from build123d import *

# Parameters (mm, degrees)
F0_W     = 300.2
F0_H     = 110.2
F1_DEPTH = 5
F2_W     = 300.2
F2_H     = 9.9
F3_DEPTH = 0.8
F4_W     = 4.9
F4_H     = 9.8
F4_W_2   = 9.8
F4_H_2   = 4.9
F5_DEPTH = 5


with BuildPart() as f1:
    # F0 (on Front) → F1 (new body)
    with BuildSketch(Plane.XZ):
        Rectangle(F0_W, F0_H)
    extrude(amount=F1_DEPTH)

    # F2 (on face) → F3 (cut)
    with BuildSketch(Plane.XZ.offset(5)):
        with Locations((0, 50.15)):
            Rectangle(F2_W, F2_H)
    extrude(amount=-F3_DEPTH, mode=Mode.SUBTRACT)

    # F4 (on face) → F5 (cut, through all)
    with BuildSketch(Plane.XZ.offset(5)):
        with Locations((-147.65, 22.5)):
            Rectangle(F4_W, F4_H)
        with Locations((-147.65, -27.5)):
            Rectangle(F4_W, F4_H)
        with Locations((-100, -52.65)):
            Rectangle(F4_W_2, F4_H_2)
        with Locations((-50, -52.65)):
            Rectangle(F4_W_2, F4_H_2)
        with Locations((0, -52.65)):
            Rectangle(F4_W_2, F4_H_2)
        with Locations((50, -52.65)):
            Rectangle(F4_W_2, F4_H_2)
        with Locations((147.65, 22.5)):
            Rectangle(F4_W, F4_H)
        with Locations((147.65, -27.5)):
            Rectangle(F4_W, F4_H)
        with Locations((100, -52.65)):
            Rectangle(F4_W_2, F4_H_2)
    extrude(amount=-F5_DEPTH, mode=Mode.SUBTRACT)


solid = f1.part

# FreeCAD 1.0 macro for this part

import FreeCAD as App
import Part
import Sketcher
from FreeCAD import Vector
Q = App.Units.Quantity

doc = App.newDocument("Part")
body = doc.addObject("PartDesign::Body", "Body")

# Sketch on XZ plane
sketch1 = doc.addObject("Sketcher::SketchObject", "Sketch")
body.addObject(sketch1)
sketch1.AttachmentSupport = (doc.XZ_Plane, [""])
sketch1.MapMode = "FlatFace"
sketch1.addGeometry(Part.LineSegment(Vector(-150, 55, 0), Vector(-150, -55, 0)), False)
sketch1.addGeometry(Part.LineSegment(Vector(-150, -55, 0), Vector(150, -55, 0)), False)
sketch1.addGeometry(Part.LineSegment(Vector(150, -55, 0), Vector(150, 55, 0)), False)
sketch1.addGeometry(Part.LineSegment(Vector(150, 55, 0), Vector(-150, 55, 0)), False)
sketch1.addConstraint(Sketcher.Constraint("Coincident", 0, 2, 1, 1))
sketch1.addConstraint(Sketcher.Constraint("Coincident", 1, 2, 2, 1))
sketch1.addConstraint(Sketcher.Constraint("Coincident", 2, 2, 3, 1))
sketch1.addConstraint(Sketcher.Constraint("Coincident", 3, 2, 0, 1))
sketch1.addConstraint(Sketcher.Constraint("Vertical", 0))
sketch1.addConstraint(Sketcher.Constraint("Horizontal", 1))
sketch1.addConstraint(Sketcher.Constraint("Vertical", 2))
sketch1.addConstraint(Sketcher.Constraint("Horizontal", 3))
sketch1.addConstraint(Sketcher.Constraint("Symmetric", 0, 2, 2, 2, -1, 1))
sketch1.addConstraint(Sketcher.Constraint("DistanceX", 1, 1, 1, 2, Q("300.2 mm")))
sketch1.addConstraint(Sketcher.Constraint("DistanceY", 0, 2, 0, 1, Q("110.2 mm")))
pad1 = doc.addObject("PartDesign::Pad", "Pad")
body.addObject(pad1)
pad1.Profile = sketch1
pad1.Length = 5

# Sketch on XZ plane
sketch2 = doc.addObject("Sketcher::SketchObject", "Sketch001")
body.addObject(sketch2)
sketch2.AttachmentSupport = (doc.XZ_Plane, [""])
sketch2.MapMode = "FlatFace"
sketch2.AttachmentOffset = App.Placement(Vector(0, 0, 5), App.Rotation())
sketch2.addGeometry(Part.LineSegment(Vector(-150, 55, 0), Vector(-150, 45, 0)), False)
sketch2.addGeometry(Part.LineSegment(Vector(-150, 45, 0), Vector(150, 45, 0)), False)
sketch2.addGeometry(Part.LineSegment(Vector(150, 45, 0), Vector(150, 55, 0)), False)
sketch2.addGeometry(Part.LineSegment(Vector(150, 55, 0), Vector(-150, 55, 0)), False)
sketch2.addConstraint(Sketcher.Constraint("Coincident", 0, 2, 1, 1))
sketch2.addConstraint(Sketcher.Constraint("Coincident", 1, 2, 2, 1))
sketch2.addConstraint(Sketcher.Constraint("Coincident", 2, 2, 3, 1))
sketch2.addConstraint(Sketcher.Constraint("Coincident", 3, 2, 0, 1))
sketch2.addConstraint(Sketcher.Constraint("Vertical", 0))
sketch2.addConstraint(Sketcher.Constraint("Horizontal", 1))
sketch2.addConstraint(Sketcher.Constraint("Vertical", 2))
sketch2.addConstraint(Sketcher.Constraint("Horizontal", 3))
sketch2.addConstraint(Sketcher.Constraint("DistanceX", 1, 1, 1, 2, Q("300.2 mm")))
sketch2.addConstraint(Sketcher.Constraint("DistanceY", 0, 2, 0, 1, Q("9.9 mm")))
sketch2.addConstraint(Sketcher.Constraint("DistanceX", 0, 2, -1, 1, Q("150.1 mm")))
sketch2.addConstraint(Sketcher.Constraint("DistanceY", -1, 1, 0, 2, Q("45.2 mm")))
pocket1 = doc.addObject("PartDesign::Pocket", "Pocket")
body.addObject(pocket1)
pocket1.Profile = sketch2
pocket1.Length = 0.8

# Sketch on XZ plane
sketch3 = doc.addObject("Sketcher::SketchObject", "Sketch002")
body.addObject(sketch3)
sketch3.AttachmentSupport = (doc.XZ_Plane, [""])
sketch3.MapMode = "FlatFace"
sketch3.AttachmentOffset = App.Placement(Vector(0, 0, 5), App.Rotation())
sketch3.addGeometry(Part.LineSegment(Vector(-150.1, 27.4, 0), Vector(-150.1, 17.6, 0)), False)
sketch3.addGeometry(Part.LineSegment(Vector(-150.1, 17.6, 0), Vector(-145.2, 17.6, 0)), False)
sketch3.addGeometry(Part.LineSegment(Vector(-145.2, 17.6, 0), Vector(-145.2, 27.4, 0)), False)
sketch3.addGeometry(Part.LineSegment(Vector(-145.2, 27.4, 0), Vector(-150.1, 27.4, 0)), False)
sketch3.addGeometry(Part.LineSegment(Vector(-150.1, -22.6, 0), Vector(-150.1, -32.4, 0)), False)
sketch3.addGeometry(Part.LineSegment(Vector(-150.1, -32.4, 0), Vector(-145.2, -32.4, 0)), False)
sketch3.addGeometry(Part.LineSegment(Vector(-145.2, -32.4, 0), Vector(-145.2, -22.6, 0)), False)
sketch3.addGeometry(Part.LineSegment(Vector(-145.2, -22.6, 0), Vector(-150.1, -22.6, 0)), False)
sketch3.addGeometry(Part.LineSegment(Vector(-104.9, -50.2, 0), Vector(-104.9, -55.1, 0)), False)
sketch3.addGeometry(Part.LineSegment(Vector(-104.9, -55.1, 0), Vector(-95.1, -55.1, 0)), False)
sketch3.addGeometry(Part.LineSegment(Vector(-95.1, -55.1, 0), Vector(-95.1, -50.2, 0)), False)
sketch3.addGeometry(Part.LineSegment(Vector(-95.1, -50.2, 0), Vector(-104.9, -50.2, 0)), False)
sketch3.addGeometry(Part.LineSegment(Vector(-54.9, -50.2, 0), Vector(-54.9, -55.1, 0)), False)
sketch3.addGeometry(Part.LineSegment(Vector(-54.9, -55.1, 0), Vector(-45.1, -55.1, 0)), False)
sketch3.addGeometry(Part.LineSegment(Vector(-45.1, -55.1, 0), Vector(-45.1, -50.2, 0)), False)
sketch3.addGeometry(Part.LineSegment(Vector(-45.1, -50.2, 0), Vector(-54.9, -50.2, 0)), False)
sketch3.addGeometry(Part.LineSegment(Vector(-4.9, -50.2, 0), Vector(-4.9, -55.1, 0)), False)
sketch3.addGeometry(Part.LineSegment(Vector(-4.9, -55.1, 0), Vector(4.9, -55.1, 0)), False)
sketch3.addGeometry(Part.LineSegment(Vector(4.9, -55.1, 0), Vector(4.9, -50.2, 0)), False)
sketch3.addGeometry(Part.LineSegment(Vector(4.9, -50.2, 0), Vector(-4.9, -50.2, 0)), False)
sketch3.addGeometry(Part.LineSegment(Vector(45.1, -50.2, 0), Vector(45.1, -55.1, 0)), False)
sketch3.addGeometry(Part.LineSegment(Vector(45.1, -55.1, 0), Vector(54.9, -55.1, 0)), False)
sketch3.addGeometry(Part.LineSegment(Vector(54.9, -55.1, 0), Vector(54.9, -50.2, 0)), False)
sketch3.addGeometry(Part.LineSegment(Vector(54.9, -50.2, 0), Vector(45.1, -50.2, 0)), False)
sketch3.addGeometry(Part.LineSegment(Vector(145.2, 27.4, 0), Vector(145.2, 17.6, 0)), False)
sketch3.addGeometry(Part.LineSegment(Vector(145.2, 17.6, 0), Vector(150.1, 17.6, 0)), False)
sketch3.addGeometry(Part.LineSegment(Vector(150.1, 17.6, 0), Vector(150.1, 27.4, 0)), False)
sketch3.addGeometry(Part.LineSegment(Vector(150.1, 27.4, 0), Vector(145.2, 27.4, 0)), False)
sketch3.addGeometry(Part.LineSegment(Vector(145.2, -22.6, 0), Vector(145.2, -32.4, 0)), False)
sketch3.addGeometry(Part.LineSegment(Vector(145.2, -32.4, 0), Vector(150.1, -32.4, 0)), False)
sketch3.addGeometry(Part.LineSegment(Vector(150.1, -32.4, 0), Vector(150.1, -22.6, 0)), False)
sketch3.addGeometry(Part.LineSegment(Vector(150.1, -22.6, 0), Vector(145.2, -22.6, 0)), False)
sketch3.addGeometry(Part.LineSegment(Vector(95.1, -50.2, 0), Vector(95.1, -55.1, 0)), False)
sketch3.addGeometry(Part.LineSegment(Vector(95.1, -55.1, 0), Vector(104.9, -55.1, 0)), False)
sketch3.addGeometry(Part.LineSegment(Vector(104.9, -55.1, 0), Vector(104.9, -50.2, 0)), False)
sketch3.addGeometry(Part.LineSegment(Vector(104.9, -50.2, 0), Vector(95.1, -50.2, 0)), False)
sketch3.addConstraint(Sketcher.Constraint("Coincident", 0, 2, 1, 1))
sketch3.addConstraint(Sketcher.Constraint("Coincident", 1, 2, 2, 1))
sketch3.addConstraint(Sketcher.Constraint("Coincident", 2, 2, 3, 1))
sketch3.addConstraint(Sketcher.Constraint("Coincident", 3, 2, 0, 1))
sketch3.addConstraint(Sketcher.Constraint("Coincident", 4, 2, 5, 1))
sketch3.addConstraint(Sketcher.Constraint("Coincident", 5, 2, 6, 1))
sketch3.addConstraint(Sketcher.Constraint("Coincident", 6, 2, 7, 1))
sketch3.addConstraint(Sketcher.Constraint("Coincident", 7, 2, 4, 1))
sketch3.addConstraint(Sketcher.Constraint("Coincident", 8, 2, 9, 1))
sketch3.addConstraint(Sketcher.Constraint("Coincident", 9, 2, 10, 1))
sketch3.addConstraint(Sketcher.Constraint("Coincident", 10, 2, 11, 1))
sketch3.addConstraint(Sketcher.Constraint("Coincident", 11, 2, 8, 1))
sketch3.addConstraint(Sketcher.Constraint("Coincident", 12, 2, 13, 1))
sketch3.addConstraint(Sketcher.Constraint("Coincident", 13, 2, 14, 1))
sketch3.addConstraint(Sketcher.Constraint("Coincident", 14, 2, 15, 1))
sketch3.addConstraint(Sketcher.Constraint("Coincident", 15, 2, 12, 1))
sketch3.addConstraint(Sketcher.Constraint("Coincident", 16, 2, 17, 1))
sketch3.addConstraint(Sketcher.Constraint("Coincident", 17, 2, 18, 1))
sketch3.addConstraint(Sketcher.Constraint("Coincident", 18, 2, 19, 1))
sketch3.addConstraint(Sketcher.Constraint("Coincident", 19, 2, 16, 1))
sketch3.addConstraint(Sketcher.Constraint("Coincident", 20, 2, 21, 1))
sketch3.addConstraint(Sketcher.Constraint("Coincident", 21, 2, 22, 1))
sketch3.addConstraint(Sketcher.Constraint("Coincident", 22, 2, 23, 1))
sketch3.addConstraint(Sketcher.Constraint("Coincident", 23, 2, 20, 1))
sketch3.addConstraint(Sketcher.Constraint("Coincident", 24, 2, 25, 1))
sketch3.addConstraint(Sketcher.Constraint("Coincident", 25, 2, 26, 1))
sketch3.addConstraint(Sketcher.Constraint("Coincident", 26, 2, 27, 1))
sketch3.addConstraint(Sketcher.Constraint("Coincident", 27, 2, 24, 1))
sketch3.addConstraint(Sketcher.Constraint("Coincident", 28, 2, 29, 1))
sketch3.addConstraint(Sketcher.Constraint("Coincident", 29, 2, 30, 1))
sketch3.addConstraint(Sketcher.Constraint("Coincident", 30, 2, 31, 1))
sketch3.addConstraint(Sketcher.Constraint("Coincident", 31, 2, 28, 1))
sketch3.addConstraint(Sketcher.Constraint("Coincident", 32, 2, 33, 1))
sketch3.addConstraint(Sketcher.Constraint("Coincident", 33, 2, 34, 1))
sketch3.addConstraint(Sketcher.Constraint("Coincident", 34, 2, 35, 1))
sketch3.addConstraint(Sketcher.Constraint("Coincident", 35, 2, 32, 1))
sketch3.addConstraint(Sketcher.Constraint("Vertical", 0))
sketch3.addConstraint(Sketcher.Constraint("Horizontal", 1))
sketch3.addConstraint(Sketcher.Constraint("Vertical", 2))
sketch3.addConstraint(Sketcher.Constraint("Horizontal", 3))
sketch3.addConstraint(Sketcher.Constraint("Vertical", 4))
sketch3.addConstraint(Sketcher.Constraint("Horizontal", 5))
sketch3.addConstraint(Sketcher.Constraint("Vertical", 6))
sketch3.addConstraint(Sketcher.Constraint("Horizontal", 7))
sketch3.addConstraint(Sketcher.Constraint("Vertical", 8))
sketch3.addConstraint(Sketcher.Constraint("Horizontal", 9))
sketch3.addConstraint(Sketcher.Constraint("Vertical", 10))
sketch3.addConstraint(Sketcher.Constraint("Horizontal", 11))
sketch3.addConstraint(Sketcher.Constraint("Vertical", 12))
sketch3.addConstraint(Sketcher.Constraint("Horizontal", 13))
sketch3.addConstraint(Sketcher.Constraint("Vertical", 14))
sketch3.addConstraint(Sketcher.Constraint("Horizontal", 15))
sketch3.addConstraint(Sketcher.Constraint("Vertical", 16))
sketch3.addConstraint(Sketcher.Constraint("Horizontal", 17))
sketch3.addConstraint(Sketcher.Constraint("Vertical", 18))
sketch3.addConstraint(Sketcher.Constraint("Horizontal", 19))
sketch3.addConstraint(Sketcher.Constraint("Vertical", 20))
sketch3.addConstraint(Sketcher.Constraint("Horizontal", 21))
sketch3.addConstraint(Sketcher.Constraint("Vertical", 22))
sketch3.addConstraint(Sketcher.Constraint("Horizontal", 23))
sketch3.addConstraint(Sketcher.Constraint("Vertical", 24))
sketch3.addConstraint(Sketcher.Constraint("Horizontal", 25))
sketch3.addConstraint(Sketcher.Constraint("Vertical", 26))
sketch3.addConstraint(Sketcher.Constraint("Horizontal", 27))
sketch3.addConstraint(Sketcher.Constraint("Vertical", 28))
sketch3.addConstraint(Sketcher.Constraint("Horizontal", 29))
sketch3.addConstraint(Sketcher.Constraint("Vertical", 30))
sketch3.addConstraint(Sketcher.Constraint("Horizontal", 31))
sketch3.addConstraint(Sketcher.Constraint("Vertical", 32))
sketch3.addConstraint(Sketcher.Constraint("Horizontal", 33))
sketch3.addConstraint(Sketcher.Constraint("Vertical", 34))
sketch3.addConstraint(Sketcher.Constraint("Horizontal", 35))
sketch3.addConstraint(Sketcher.Constraint("Symmetric", 13, 2, 20, 2, -2))
sketch3.addConstraint(Sketcher.Constraint("Symmetric", 15, 2, 22, 2, -2))
sketch3.addConstraint(Sketcher.Constraint("Symmetric", 1, 2, 24, 2, -2))
sketch3.addConstraint(Sketcher.Constraint("Symmetric", 3, 2, 26, 2, -2))
sketch3.addConstraint(Sketcher.Constraint("Symmetric", 5, 2, 28, 2, -2))
sketch3.addConstraint(Sketcher.Constraint("Symmetric", 7, 2, 30, 2, -2))
sketch3.addConstraint(Sketcher.Constraint("Symmetric", 9, 2, 32, 2, -2))
sketch3.addConstraint(Sketcher.Constraint("Symmetric", 11, 2, 34, 2, -2))
sketch3.addConstraint(Sketcher.Constraint("Horizontal", 9, 2, 12, 2))
sketch3.addConstraint(Sketcher.Constraint("Horizontal", 11, 2, 14, 2))
sketch3.addConstraint(Sketcher.Constraint("Horizontal", 13, 2, 16, 2))
sketch3.addConstraint(Sketcher.Constraint("Horizontal", 15, 2, 18, 2))
sketch3.addConstraint(Sketcher.Constraint("Vertical", 3, 2, 4, 2))
sketch3.addConstraint(Sketcher.Constraint("Vertical", 2, 2, 5, 2))
sketch3.addConstraint(Sketcher.Constraint("Equal", 11, 13))
sketch3.addConstraint(Sketcher.Constraint("Equal", 15, 17))
sketch3.addConstraint(Sketcher.Constraint("Equal", 35, 0))
sketch3.addConstraint(Sketcher.Constraint("Equal", 2, 4))
sketch3.addConstraint(Sketcher.Constraint("Equal", 31, 8))
sketch3.addConstraint(Sketcher.Constraint("DistanceX", 1, 1, 1, 2, Q("4.9 mm")))
sketch3.addConstraint(Sketcher.Constraint("DistanceX", 9, 1, 9, 2, Q("9.8 mm")))
sketch3.addConstraint(Sketcher.Constraint("DistanceY", 4, 2, 0, 2, Q("50 mm")))
sketch3.addConstraint(Sketcher.Constraint("DistanceX", 4, 2, 9, 2, Q("55 mm")))
sketch3.addConstraint(Sketcher.Constraint("DistanceX", 8, 2, 12, 2, Q("50 mm")))
sketch3.addConstraint(Sketcher.Constraint("DistanceX", 12, 2, 16, 2, Q("50 mm")))
sketch3.addConstraint(Sketcher.Constraint("DistanceX", 16, 2, 20, 2, Q("50 mm")))
sketch3.addConstraint(Sketcher.Constraint("DistanceY", -1, 1, 0, 2, Q("17.6 mm")))
sketch3.addConstraint(Sketcher.Constraint("DistanceY", 8, 2, -1, 1, Q("55.1 mm")))
pocket2 = doc.addObject("PartDesign::Pocket", "Pocket001")
body.addObject(pocket2)
pocket2.Profile = sketch3
pocket2.Type = "ThroughAll"

doc.recompute()
